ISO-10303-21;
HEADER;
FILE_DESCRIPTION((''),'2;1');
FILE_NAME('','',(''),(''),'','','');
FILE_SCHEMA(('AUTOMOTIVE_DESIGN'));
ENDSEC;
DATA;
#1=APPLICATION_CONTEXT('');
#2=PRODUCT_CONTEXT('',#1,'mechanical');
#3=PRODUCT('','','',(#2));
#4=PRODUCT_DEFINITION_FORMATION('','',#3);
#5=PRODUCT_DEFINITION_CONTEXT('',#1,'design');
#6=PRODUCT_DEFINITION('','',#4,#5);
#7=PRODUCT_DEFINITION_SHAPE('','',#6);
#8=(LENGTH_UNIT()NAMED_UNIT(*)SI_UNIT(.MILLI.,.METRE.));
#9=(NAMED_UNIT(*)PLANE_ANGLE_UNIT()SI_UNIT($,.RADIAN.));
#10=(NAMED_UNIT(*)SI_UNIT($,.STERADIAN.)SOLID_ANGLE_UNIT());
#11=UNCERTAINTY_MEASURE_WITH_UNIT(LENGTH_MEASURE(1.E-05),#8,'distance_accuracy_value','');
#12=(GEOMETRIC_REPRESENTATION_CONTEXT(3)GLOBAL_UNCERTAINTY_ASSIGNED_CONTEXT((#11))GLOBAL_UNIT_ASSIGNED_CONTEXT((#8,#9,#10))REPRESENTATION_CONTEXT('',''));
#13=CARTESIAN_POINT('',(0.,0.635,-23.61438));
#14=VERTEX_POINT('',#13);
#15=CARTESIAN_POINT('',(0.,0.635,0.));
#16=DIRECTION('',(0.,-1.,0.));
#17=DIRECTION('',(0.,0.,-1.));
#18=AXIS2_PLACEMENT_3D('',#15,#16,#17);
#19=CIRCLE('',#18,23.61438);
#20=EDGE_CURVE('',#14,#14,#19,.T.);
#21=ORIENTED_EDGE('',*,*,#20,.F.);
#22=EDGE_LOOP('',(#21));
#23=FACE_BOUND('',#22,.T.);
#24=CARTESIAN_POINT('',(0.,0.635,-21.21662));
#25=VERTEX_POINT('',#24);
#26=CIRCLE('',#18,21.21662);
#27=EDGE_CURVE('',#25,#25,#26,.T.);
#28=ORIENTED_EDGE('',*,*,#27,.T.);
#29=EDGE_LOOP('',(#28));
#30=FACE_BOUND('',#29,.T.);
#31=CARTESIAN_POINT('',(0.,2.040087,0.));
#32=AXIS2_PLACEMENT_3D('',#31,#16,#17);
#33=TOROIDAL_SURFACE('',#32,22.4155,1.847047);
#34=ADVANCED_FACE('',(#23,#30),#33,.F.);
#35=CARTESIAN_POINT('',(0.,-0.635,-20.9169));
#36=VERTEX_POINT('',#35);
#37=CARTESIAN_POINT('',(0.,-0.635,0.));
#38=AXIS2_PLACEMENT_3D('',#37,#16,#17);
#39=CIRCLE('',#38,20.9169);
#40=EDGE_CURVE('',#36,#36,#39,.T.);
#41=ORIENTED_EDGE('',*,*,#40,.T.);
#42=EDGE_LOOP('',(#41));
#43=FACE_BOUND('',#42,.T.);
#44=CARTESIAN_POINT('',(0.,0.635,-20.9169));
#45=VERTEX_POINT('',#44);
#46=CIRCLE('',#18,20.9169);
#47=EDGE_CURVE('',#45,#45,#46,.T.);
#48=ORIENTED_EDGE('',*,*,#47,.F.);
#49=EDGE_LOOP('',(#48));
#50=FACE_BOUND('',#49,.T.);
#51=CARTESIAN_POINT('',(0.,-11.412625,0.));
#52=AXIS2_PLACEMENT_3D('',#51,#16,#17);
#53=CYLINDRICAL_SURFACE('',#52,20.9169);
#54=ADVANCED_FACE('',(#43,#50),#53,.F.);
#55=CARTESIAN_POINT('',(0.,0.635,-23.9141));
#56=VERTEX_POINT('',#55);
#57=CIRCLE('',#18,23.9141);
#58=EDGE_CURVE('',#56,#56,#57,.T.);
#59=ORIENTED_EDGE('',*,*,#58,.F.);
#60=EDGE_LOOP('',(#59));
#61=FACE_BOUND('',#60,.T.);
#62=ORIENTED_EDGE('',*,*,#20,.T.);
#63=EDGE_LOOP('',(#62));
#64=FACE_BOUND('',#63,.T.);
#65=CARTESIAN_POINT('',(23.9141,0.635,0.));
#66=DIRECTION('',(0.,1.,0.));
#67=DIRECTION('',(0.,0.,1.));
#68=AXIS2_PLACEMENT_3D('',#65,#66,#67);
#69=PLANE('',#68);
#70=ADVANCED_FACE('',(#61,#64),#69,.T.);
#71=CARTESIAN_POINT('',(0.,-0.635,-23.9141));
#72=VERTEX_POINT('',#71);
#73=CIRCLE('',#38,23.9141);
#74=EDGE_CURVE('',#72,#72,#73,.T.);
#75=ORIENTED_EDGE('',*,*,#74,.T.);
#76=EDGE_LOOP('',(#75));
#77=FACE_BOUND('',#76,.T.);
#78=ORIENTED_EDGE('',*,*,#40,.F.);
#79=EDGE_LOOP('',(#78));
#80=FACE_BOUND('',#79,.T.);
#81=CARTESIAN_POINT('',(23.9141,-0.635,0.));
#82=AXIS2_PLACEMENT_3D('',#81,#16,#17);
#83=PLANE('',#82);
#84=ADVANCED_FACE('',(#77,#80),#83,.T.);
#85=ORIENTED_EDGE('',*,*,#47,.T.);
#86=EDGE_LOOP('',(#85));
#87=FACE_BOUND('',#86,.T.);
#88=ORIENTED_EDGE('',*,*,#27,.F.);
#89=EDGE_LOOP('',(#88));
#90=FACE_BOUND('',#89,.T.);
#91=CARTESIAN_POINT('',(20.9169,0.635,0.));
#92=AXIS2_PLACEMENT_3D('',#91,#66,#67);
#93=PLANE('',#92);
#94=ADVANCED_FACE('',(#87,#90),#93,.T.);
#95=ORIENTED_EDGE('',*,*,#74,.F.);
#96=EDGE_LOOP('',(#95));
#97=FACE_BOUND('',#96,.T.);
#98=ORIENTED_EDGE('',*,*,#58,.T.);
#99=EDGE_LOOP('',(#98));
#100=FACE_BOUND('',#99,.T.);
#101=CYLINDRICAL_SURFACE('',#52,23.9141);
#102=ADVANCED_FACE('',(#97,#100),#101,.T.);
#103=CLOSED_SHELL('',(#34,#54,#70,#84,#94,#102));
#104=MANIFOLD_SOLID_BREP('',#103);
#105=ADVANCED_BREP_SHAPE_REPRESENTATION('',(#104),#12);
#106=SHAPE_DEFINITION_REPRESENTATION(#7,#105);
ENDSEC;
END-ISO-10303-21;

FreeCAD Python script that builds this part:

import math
import FreeCAD as App
import Part
import Sketcher

V = App.Vector
Q = App.Units.Quantity

doc = App.newDocument("Part")
params = doc.addObject("Spreadsheet::Sheet", "Params")
for row, (alias, value) in enumerate([
    ("sketch1_height", "0.05 in"),
    ("sketch1_width", "0.118 in"),
    ("revolution_angle", "360 deg"),
], start=1):
    params.set(f"A{row}", alias)
    params.set(f"B{row}", "=" + value)
    params.setAlias(f"B{row}", alias)

body = doc.addObject("PartDesign::Body", "Body")

# Sketch on XY plane
sketch1 = body.newObject("Sketcher::SketchObject", "Sketch")
sketch1.AttachmentSupport = (doc.getObject("XY_Plane"), [""])
sketch1.MapMode = "FlatFace"
sketch1.addGeometry(Part.LineSegment(V(23.91, -0.64, 0), V(23.91, 0.64, 0)), False)
sketch1.addGeometry(Part.LineSegment(V(23.91, 0.64, 0), V(23.61, 0.64, 0)), False)
sketch1.addGeometry(Part.ArcOfCircle(Part.Circle(V(22.42, 2.04, 0), V(0, 0, 1), 1.85), math.radians(-130), math.radians(-50)), False)
sketch1.addGeometry(Part.LineSegment(V(21.22, 0.64, 0), V(20.92, 0.64, 0)), False)
sketch1.addGeometry(Part.LineSegment(V(20.92, 0.64, 0), V(20.92, -0.64, 0)), False)
sketch1.addGeometry(Part.LineSegment(V(20.92, -0.64, 0), V(23.91, -0.64, 0)), False)
sketch1.addConstraint(Sketcher.Constraint("Coincident", 0, 2, 1, 1))
sketch1.addConstraint(Sketcher.Constraint("Coincident", 1, 2, 2, 2))
sketch1.addConstraint(Sketcher.Constraint("Coincident", 2, 1, 3, 1))
sketch1.addConstraint(Sketcher.Constraint("Coincident", 3, 2, 4, 1))
sketch1.addConstraint(Sketcher.Constraint("Coincident", 4, 2, 5, 1))
sketch1.addConstraint(Sketcher.Constraint("Coincident", 5, 2, 0, 1))
sketch1.addConstraint(Sketcher.Constraint("Vertical", 0))
sketch1.addConstraint(Sketcher.Constraint("Horizontal", 1))
sketch1.addConstraint(Sketcher.Constraint("Horizontal", 3))
sketch1.addConstraint(Sketcher.Constraint("Vertical", 4))
sketch1.addConstraint(Sketcher.Constraint("Horizontal", 5))
sketch1.addConstraint(Sketcher.Constraint("Horizontal", 1, 2, 2, 1))
sketch1.addConstraint(Sketcher.Constraint("Equal", 1, 3))
sketch1.addConstraint(Sketcher.Constraint("DistanceY", 0, 1, 0, 2, Q("0.05 in")))
sketch1.addConstraint(Sketcher.Constraint("DistanceX", 5, 1, 5, 2, Q("0.118 in")))
sketch1.addConstraint(Sketcher.Constraint("DistanceX", 1, 2, 1, 1, Q("0.0118 in")))
sketch1.addConstraint(Sketcher.Constraint("DistanceY", -1, 1, 0, 2, Q("0.025 in")))
sketch1.addConstraint(Sketcher.Constraint("DistanceX", -1, 1, 2, 3, Q("0.8825 in")))
sketch1.addConstraint(Sketcher.Constraint("Radius", 2, Q("1.847047 mm")))
sketch1.setExpression("Constraints[13]", "Params.sketch1_height")
sketch1.setExpression("Constraints[14]", "Params.sketch1_width")
revolution = body.newObject("PartDesign::Revolution", "Revolution")
revolution.Profile = sketch1
revolution.ReferenceAxis = (sketch1, ["V_Axis"])
revolution.setExpression("Angle", "Params.revolution_angle")

doc.recompute()
